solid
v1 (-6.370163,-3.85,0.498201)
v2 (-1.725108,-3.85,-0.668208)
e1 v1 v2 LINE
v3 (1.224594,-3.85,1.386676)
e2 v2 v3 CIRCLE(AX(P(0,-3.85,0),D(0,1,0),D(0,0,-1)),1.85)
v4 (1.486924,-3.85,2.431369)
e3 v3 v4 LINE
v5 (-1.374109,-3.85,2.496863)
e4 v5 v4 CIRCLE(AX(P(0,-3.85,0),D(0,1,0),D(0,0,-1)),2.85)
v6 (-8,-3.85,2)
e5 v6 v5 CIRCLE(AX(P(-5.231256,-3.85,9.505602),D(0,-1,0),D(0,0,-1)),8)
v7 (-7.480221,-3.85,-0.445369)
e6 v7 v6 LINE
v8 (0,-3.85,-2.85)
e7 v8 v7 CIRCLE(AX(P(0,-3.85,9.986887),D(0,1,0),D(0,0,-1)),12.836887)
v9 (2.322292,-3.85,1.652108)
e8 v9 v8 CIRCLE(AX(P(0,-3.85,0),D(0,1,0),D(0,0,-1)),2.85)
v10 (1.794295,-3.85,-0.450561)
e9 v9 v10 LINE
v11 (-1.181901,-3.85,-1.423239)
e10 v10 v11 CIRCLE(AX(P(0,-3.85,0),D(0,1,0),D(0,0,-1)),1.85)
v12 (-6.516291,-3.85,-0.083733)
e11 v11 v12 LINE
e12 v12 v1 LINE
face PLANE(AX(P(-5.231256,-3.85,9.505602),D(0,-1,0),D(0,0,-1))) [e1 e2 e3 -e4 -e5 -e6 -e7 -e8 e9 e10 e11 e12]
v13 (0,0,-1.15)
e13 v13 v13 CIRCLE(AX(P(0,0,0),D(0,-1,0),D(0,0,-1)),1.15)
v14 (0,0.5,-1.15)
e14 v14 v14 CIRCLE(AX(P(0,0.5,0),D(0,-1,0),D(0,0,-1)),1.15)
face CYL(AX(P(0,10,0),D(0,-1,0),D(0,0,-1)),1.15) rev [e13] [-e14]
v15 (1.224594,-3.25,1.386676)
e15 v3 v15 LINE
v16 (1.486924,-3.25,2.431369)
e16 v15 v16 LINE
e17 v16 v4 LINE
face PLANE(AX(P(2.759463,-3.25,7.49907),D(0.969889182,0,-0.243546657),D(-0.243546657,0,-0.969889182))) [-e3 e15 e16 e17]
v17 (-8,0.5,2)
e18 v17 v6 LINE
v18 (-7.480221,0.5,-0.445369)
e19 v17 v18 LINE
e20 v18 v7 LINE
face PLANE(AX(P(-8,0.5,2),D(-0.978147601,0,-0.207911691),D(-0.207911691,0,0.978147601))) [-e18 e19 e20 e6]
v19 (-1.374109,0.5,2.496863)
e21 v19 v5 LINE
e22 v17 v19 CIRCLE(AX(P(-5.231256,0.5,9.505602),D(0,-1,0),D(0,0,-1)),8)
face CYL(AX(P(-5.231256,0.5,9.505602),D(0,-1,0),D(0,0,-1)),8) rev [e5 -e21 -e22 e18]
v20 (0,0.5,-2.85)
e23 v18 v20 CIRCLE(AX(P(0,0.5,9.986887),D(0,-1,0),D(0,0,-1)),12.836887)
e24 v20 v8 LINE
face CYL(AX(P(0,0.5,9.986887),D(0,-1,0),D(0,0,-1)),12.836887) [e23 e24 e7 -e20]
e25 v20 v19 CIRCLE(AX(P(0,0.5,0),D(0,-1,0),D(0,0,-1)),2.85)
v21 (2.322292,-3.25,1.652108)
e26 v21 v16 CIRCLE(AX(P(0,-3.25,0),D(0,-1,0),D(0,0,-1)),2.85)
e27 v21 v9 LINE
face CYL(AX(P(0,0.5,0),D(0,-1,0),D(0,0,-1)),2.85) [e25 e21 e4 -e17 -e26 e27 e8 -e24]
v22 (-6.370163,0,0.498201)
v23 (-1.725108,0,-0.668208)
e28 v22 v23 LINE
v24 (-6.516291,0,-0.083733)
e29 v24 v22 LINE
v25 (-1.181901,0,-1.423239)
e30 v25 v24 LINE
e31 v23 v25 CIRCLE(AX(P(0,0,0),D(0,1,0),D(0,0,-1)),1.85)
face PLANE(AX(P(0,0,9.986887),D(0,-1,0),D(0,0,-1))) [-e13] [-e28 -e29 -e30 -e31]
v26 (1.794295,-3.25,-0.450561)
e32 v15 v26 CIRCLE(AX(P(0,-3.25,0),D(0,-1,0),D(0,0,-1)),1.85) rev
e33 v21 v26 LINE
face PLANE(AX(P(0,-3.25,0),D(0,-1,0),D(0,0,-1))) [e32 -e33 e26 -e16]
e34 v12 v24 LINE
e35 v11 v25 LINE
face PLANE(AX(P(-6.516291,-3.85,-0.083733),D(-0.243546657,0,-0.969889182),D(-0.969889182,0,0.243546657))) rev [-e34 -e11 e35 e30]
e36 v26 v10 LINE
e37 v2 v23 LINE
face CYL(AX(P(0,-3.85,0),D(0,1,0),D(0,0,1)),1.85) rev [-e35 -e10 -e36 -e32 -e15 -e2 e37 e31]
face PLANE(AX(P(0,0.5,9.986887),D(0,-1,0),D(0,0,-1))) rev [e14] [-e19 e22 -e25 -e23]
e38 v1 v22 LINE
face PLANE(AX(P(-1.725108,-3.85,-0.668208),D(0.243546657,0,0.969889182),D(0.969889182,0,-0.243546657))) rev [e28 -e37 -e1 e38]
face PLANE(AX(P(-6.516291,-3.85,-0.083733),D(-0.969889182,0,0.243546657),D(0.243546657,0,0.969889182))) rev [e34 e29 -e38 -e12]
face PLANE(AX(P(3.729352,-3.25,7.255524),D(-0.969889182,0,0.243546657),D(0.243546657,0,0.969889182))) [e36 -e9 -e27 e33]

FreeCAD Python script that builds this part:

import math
import FreeCAD as App
import Part
import Sketcher
from FreeCAD import Vector
Q = App.Units.Quantity

doc = App.newDocument("Part")
body = doc.addObject("PartDesign::Body", "Body")

sketch1 = body.newObject("Sketcher::SketchObject", "Sketch")
sketch1.AttachmentSupport = (doc.getObject("XZ_Plane"), [""])
sketch1.MapMode = "FlatFace"
sketch1.addGeometry([
    Part.LineSegment(Vector(-7.480221, -0.445369, 0), Vector(-8, 2, 0)),
    Part.ArcOfCircle(Part.Circle(Vector(-5.231256, 9.505602, 0), Vector(0, 0, 1), 8), math.radians(-110.248532), math.radians(-61.174516)),
    Part.ArcOfCircle(Part.Circle(Vector(0, 0, 0), Vector(0, 0, 1), 2.85), math.radians(-90), math.radians(118.825484)),
    Part.ArcOfCircle(Part.Circle(Vector(0, 9.986887, 0), Vector(0, 0, 1), 12.836887), math.radians(-125.641587), math.radians(-90)),
], False)
sketch1.addConstraint([
    Sketcher.Constraint("Coincident", 0, 2, 1, 1),
    Sketcher.Constraint("Tangent", 1, 2, 2, 2),
    Sketcher.Constraint("Tangent", 2, 1, 3, 2),
    Sketcher.Constraint("Coincident", 3, 1, 0, 1),
    Sketcher.Constraint("Coincident", 2, 3, -1, 1),
    Sketcher.Constraint("PointOnObject", 3, 3, -2),
    Sketcher.Constraint("Radius", 1, 8.0),
    Sketcher.Constraint("Angle", 0, Q("102 deg")),
    Sketcher.Constraint("Radius", 2, 2.85),
    Sketcher.Constraint("DistanceX", 0, 2, -1, 1, 8.0),
    Sketcher.Constraint("DistanceY", -1, 1, 0, 2, 2.0),
    Sketcher.Constraint("Distance", 0, 2.5),
])
pad1 = body.newObject("PartDesign::Pad", "Pad")
pad1.Profile = sketch1
pad1.Length = 0.5
pad1.Reversed = True

sketch2 = body.newObject("Sketcher::SketchObject", "Sketch001")
sketch2.AttachmentSupport = (doc.getObject("XZ_Plane"), [""])
sketch2.MapMode = "FlatFace"
sketch2.AttachmentOffset = App.Placement(Vector(0, 0, 3.85), App.Rotation())
sketch2.addGeometry([
    Part.LineSegment(Vector(-7.480221, -0.445369, 0), Vector(-8, 2, 0)),
    Part.ArcOfCircle(Part.Circle(Vector(-5.231256, 9.505602, 0), Vector(0, 0, 1), 8), math.radians(-110.248532), math.radians(-61.174516)),
    Part.ArcOfCircle(Part.Circle(Vector(0, 0, 0), Vector(0, 0, 1), 2.85), math.radians(-90), math.radians(118.825484)),
    Part.ArcOfCircle(Part.Circle(Vector(0, 9.986887, 0), Vector(0, 0, 1), 12.836887), math.radians(-125.641587), math.radians(-90)),
    Part.LineSegment(Vector(-6.516291, -0.083733, 0), Vector(-1.181901, -1.423239, 0)),
    Part.ArcOfCircle(Part.Circle(Vector(0, 0, 0), Vector(0, 0, 1), 1.85), math.radians(-129.707265), math.radians(201.173528)),
    Part.LineSegment(Vector(-1.725108, -0.668208, 0), Vector(-6.370163, 0.498201, 0)),
    Part.LineSegment(Vector(-6.370163, 0.498201, 0), Vector(-6.516291, -0.083733, 0)),
], False)
sketch2.addConstraint([
    Sketcher.Constraint("Coincident", 0, 2, 1, 1),
    Sketcher.Constraint("Tangent", 1, 2, 2, 2),
    Sketcher.Constraint("Tangent", 2, 1, 3, 2),
    Sketcher.Constraint("Coincident", 3, 1, 0, 1),
    Sketcher.Constraint("Coincident", 4, 2, 5, 1),
    Sketcher.Constraint("Coincident", 5, 2, 6, 1),
    Sketcher.Constraint("Coincident", 6, 2, 7, 1),
    Sketcher.Constraint("Coincident", 7, 2, 4, 1),
    Sketcher.Constraint("Coincident", 2, 3, -1, 1),
    Sketcher.Constraint("Coincident", 5, 3, -1, 1),
    Sketcher.Constraint("PointOnObject", 3, 3, -2),
    Sketcher.Constraint("Parallel", 4, 6),
    Sketcher.Constraint("Perpendicular", 6, 7),
    Sketcher.Constraint("Radius", 1, 8.0),
    Sketcher.Constraint("Angle", 0, Q("102 deg")),
    Sketcher.Constraint("Radius", 2, 2.85),
    Sketcher.Constraint("Radius", 5, 1.85),
    Sketcher.Constraint("DistanceX", 0, 2, -1, 1, 8.0),
    Sketcher.Constraint("DistanceY", -1, 1, 0, 2, 2.0),
    Sketcher.Constraint("Distance", 0, 2.5),
    Sketcher.Constraint("Distance", 4, 5.5),
    Sketcher.Constraint("Distance", 7, 0.6),
    Sketcher.Constraint("DistanceX", 5, 2, 1, 2, 0.350999),
    Sketcher.Constraint("DistanceX", 4, 2, -1, 1, 1.181901),
])
pad2 = body.newObject("PartDesign::Pad", "Pad001")
pad2.Profile = sketch2
pad2.Length = 3.85
pad2.Reversed = True

sketch3 = body.newObject("Sketcher::SketchObject", "Sketch002")
sketch3.AttachmentSupport = (doc.getObject("XZ_Plane"), [""])
sketch3.MapMode = "FlatFace"
sketch3.addGeometry(Part.Circle(Vector(0, 0, 0), Vector(0, 0, 1), 1.15), False)
sketch3.addConstraint([
    Sketcher.Constraint("Coincident", 0, 3, -1, 1),
    Sketcher.Constraint("Diameter", 0, 2.3),
])
pocket1 = body.newObject("PartDesign::Pocket", "Pocket")
pocket1.Profile = sketch3
pocket1.Length = 10

sketch4 = body.newObject("Sketcher::SketchObject", "Sketch003")
sketch4.AttachmentSupport = (doc.getObject("XZ_Plane"), [""])
sketch4.MapMode = "FlatFace"
sketch4.AttachmentOffset = App.Placement(Vector(0, 0, 3.85), App.Rotation())
sketch4.addGeometry([
    Part.LineSegment(Vector(1.486924, 2.431369, 0), Vector(1.085531, 0.832877, 0)),
    Part.LineSegment(Vector(1.085531, 0.832877, 0), Vector(1.794295, -0.450561, 0)),
    Part.LineSegment(Vector(1.794295, -0.450561, 0), Vector(2.322292, 1.652108, 0)),
    Part.ArcOfCircle(Part.Circle(Vector(0, 0, 0), Vector(0, 0, 1), 2.85), math.radians(35.42854), math.radians(58.551777)),
], False)
sketch4.addConstraint([
    Sketcher.Constraint("Coincident", 0, 2, 1, 1),
    Sketcher.Constraint("Coincident", 1, 2, 2, 1),
    Sketcher.Constraint("Coincident", 2, 2, 3, 1),
    Sketcher.Constraint("Coincident", 3, 2, 0, 1),
    Sketcher.Constraint("Coincident", 3, 3, -1, 1),
    Sketcher.Constraint("Parallel", 0, 2),
    Sketcher.Constraint("Radius", 3, 2.85),
    Sketcher.Constraint("Distance", 0, 1.648119),
    Sketcher.Constraint("Distance", 2, 2.167948),
    Sketcher.Constraint("DistanceX", -1, 1, 0, 2, 1.085531),
    Sketcher.Constraint("DistanceY", 1, 2, -1, 1, 0.450561),
    Sketcher.Constraint("DistanceX", -1, 1, 2, 2, 2.322292),
])
pocket2 = body.newObject("PartDesign::Pocket", "Pocket001")
pocket2.Profile = sketch4
pocket2.Length = 0.6

doc.recompute()
